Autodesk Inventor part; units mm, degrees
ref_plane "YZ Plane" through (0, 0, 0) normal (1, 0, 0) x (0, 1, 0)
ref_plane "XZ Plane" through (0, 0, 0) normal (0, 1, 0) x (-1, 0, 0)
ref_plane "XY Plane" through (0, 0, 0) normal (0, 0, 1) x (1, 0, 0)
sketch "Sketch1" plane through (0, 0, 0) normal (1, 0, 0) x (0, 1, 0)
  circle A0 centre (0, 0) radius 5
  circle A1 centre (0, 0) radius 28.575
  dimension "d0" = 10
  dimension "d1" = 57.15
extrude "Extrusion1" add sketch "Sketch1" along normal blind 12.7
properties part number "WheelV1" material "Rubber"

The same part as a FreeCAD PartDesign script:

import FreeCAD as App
import Part
import Sketcher
from FreeCAD import Vector
Q = App.Units.Quantity

doc = App.newDocument("Part")
body = doc.addObject("PartDesign::Body", "Body")

# Sketch on YZ plane
sketch1 = body.newObject("Sketcher::SketchObject", "Sketch")
sketch1.AttachmentSupport = (doc.getObject("YZ_Plane"), [""])
sketch1.MapMode = "FlatFace"
sketch1.addGeometry([
    Part.Circle(Vector(0, 0, 0), Vector(0, 0, 1), 29),
    Part.Circle(Vector(0, 0, 0), Vector(0, 0, 1), 5),
], False)
sketch1.addConstraint([
    Sketcher.Constraint("Coincident", 0, 3, -1, 1),
    Sketcher.Constraint("Coincident", 1, 3, -1, 1),
    Sketcher.Constraint("Diameter", 0, Q("2.25 in")),
    Sketcher.Constraint("Diameter", 1, Q("0.3937 in")),
])
pad1 = body.newObject("PartDesign::Pad", "Pad")
pad1.Profile = sketch1
pad1.Length = Q("0.5 in")

doc.recompute()
